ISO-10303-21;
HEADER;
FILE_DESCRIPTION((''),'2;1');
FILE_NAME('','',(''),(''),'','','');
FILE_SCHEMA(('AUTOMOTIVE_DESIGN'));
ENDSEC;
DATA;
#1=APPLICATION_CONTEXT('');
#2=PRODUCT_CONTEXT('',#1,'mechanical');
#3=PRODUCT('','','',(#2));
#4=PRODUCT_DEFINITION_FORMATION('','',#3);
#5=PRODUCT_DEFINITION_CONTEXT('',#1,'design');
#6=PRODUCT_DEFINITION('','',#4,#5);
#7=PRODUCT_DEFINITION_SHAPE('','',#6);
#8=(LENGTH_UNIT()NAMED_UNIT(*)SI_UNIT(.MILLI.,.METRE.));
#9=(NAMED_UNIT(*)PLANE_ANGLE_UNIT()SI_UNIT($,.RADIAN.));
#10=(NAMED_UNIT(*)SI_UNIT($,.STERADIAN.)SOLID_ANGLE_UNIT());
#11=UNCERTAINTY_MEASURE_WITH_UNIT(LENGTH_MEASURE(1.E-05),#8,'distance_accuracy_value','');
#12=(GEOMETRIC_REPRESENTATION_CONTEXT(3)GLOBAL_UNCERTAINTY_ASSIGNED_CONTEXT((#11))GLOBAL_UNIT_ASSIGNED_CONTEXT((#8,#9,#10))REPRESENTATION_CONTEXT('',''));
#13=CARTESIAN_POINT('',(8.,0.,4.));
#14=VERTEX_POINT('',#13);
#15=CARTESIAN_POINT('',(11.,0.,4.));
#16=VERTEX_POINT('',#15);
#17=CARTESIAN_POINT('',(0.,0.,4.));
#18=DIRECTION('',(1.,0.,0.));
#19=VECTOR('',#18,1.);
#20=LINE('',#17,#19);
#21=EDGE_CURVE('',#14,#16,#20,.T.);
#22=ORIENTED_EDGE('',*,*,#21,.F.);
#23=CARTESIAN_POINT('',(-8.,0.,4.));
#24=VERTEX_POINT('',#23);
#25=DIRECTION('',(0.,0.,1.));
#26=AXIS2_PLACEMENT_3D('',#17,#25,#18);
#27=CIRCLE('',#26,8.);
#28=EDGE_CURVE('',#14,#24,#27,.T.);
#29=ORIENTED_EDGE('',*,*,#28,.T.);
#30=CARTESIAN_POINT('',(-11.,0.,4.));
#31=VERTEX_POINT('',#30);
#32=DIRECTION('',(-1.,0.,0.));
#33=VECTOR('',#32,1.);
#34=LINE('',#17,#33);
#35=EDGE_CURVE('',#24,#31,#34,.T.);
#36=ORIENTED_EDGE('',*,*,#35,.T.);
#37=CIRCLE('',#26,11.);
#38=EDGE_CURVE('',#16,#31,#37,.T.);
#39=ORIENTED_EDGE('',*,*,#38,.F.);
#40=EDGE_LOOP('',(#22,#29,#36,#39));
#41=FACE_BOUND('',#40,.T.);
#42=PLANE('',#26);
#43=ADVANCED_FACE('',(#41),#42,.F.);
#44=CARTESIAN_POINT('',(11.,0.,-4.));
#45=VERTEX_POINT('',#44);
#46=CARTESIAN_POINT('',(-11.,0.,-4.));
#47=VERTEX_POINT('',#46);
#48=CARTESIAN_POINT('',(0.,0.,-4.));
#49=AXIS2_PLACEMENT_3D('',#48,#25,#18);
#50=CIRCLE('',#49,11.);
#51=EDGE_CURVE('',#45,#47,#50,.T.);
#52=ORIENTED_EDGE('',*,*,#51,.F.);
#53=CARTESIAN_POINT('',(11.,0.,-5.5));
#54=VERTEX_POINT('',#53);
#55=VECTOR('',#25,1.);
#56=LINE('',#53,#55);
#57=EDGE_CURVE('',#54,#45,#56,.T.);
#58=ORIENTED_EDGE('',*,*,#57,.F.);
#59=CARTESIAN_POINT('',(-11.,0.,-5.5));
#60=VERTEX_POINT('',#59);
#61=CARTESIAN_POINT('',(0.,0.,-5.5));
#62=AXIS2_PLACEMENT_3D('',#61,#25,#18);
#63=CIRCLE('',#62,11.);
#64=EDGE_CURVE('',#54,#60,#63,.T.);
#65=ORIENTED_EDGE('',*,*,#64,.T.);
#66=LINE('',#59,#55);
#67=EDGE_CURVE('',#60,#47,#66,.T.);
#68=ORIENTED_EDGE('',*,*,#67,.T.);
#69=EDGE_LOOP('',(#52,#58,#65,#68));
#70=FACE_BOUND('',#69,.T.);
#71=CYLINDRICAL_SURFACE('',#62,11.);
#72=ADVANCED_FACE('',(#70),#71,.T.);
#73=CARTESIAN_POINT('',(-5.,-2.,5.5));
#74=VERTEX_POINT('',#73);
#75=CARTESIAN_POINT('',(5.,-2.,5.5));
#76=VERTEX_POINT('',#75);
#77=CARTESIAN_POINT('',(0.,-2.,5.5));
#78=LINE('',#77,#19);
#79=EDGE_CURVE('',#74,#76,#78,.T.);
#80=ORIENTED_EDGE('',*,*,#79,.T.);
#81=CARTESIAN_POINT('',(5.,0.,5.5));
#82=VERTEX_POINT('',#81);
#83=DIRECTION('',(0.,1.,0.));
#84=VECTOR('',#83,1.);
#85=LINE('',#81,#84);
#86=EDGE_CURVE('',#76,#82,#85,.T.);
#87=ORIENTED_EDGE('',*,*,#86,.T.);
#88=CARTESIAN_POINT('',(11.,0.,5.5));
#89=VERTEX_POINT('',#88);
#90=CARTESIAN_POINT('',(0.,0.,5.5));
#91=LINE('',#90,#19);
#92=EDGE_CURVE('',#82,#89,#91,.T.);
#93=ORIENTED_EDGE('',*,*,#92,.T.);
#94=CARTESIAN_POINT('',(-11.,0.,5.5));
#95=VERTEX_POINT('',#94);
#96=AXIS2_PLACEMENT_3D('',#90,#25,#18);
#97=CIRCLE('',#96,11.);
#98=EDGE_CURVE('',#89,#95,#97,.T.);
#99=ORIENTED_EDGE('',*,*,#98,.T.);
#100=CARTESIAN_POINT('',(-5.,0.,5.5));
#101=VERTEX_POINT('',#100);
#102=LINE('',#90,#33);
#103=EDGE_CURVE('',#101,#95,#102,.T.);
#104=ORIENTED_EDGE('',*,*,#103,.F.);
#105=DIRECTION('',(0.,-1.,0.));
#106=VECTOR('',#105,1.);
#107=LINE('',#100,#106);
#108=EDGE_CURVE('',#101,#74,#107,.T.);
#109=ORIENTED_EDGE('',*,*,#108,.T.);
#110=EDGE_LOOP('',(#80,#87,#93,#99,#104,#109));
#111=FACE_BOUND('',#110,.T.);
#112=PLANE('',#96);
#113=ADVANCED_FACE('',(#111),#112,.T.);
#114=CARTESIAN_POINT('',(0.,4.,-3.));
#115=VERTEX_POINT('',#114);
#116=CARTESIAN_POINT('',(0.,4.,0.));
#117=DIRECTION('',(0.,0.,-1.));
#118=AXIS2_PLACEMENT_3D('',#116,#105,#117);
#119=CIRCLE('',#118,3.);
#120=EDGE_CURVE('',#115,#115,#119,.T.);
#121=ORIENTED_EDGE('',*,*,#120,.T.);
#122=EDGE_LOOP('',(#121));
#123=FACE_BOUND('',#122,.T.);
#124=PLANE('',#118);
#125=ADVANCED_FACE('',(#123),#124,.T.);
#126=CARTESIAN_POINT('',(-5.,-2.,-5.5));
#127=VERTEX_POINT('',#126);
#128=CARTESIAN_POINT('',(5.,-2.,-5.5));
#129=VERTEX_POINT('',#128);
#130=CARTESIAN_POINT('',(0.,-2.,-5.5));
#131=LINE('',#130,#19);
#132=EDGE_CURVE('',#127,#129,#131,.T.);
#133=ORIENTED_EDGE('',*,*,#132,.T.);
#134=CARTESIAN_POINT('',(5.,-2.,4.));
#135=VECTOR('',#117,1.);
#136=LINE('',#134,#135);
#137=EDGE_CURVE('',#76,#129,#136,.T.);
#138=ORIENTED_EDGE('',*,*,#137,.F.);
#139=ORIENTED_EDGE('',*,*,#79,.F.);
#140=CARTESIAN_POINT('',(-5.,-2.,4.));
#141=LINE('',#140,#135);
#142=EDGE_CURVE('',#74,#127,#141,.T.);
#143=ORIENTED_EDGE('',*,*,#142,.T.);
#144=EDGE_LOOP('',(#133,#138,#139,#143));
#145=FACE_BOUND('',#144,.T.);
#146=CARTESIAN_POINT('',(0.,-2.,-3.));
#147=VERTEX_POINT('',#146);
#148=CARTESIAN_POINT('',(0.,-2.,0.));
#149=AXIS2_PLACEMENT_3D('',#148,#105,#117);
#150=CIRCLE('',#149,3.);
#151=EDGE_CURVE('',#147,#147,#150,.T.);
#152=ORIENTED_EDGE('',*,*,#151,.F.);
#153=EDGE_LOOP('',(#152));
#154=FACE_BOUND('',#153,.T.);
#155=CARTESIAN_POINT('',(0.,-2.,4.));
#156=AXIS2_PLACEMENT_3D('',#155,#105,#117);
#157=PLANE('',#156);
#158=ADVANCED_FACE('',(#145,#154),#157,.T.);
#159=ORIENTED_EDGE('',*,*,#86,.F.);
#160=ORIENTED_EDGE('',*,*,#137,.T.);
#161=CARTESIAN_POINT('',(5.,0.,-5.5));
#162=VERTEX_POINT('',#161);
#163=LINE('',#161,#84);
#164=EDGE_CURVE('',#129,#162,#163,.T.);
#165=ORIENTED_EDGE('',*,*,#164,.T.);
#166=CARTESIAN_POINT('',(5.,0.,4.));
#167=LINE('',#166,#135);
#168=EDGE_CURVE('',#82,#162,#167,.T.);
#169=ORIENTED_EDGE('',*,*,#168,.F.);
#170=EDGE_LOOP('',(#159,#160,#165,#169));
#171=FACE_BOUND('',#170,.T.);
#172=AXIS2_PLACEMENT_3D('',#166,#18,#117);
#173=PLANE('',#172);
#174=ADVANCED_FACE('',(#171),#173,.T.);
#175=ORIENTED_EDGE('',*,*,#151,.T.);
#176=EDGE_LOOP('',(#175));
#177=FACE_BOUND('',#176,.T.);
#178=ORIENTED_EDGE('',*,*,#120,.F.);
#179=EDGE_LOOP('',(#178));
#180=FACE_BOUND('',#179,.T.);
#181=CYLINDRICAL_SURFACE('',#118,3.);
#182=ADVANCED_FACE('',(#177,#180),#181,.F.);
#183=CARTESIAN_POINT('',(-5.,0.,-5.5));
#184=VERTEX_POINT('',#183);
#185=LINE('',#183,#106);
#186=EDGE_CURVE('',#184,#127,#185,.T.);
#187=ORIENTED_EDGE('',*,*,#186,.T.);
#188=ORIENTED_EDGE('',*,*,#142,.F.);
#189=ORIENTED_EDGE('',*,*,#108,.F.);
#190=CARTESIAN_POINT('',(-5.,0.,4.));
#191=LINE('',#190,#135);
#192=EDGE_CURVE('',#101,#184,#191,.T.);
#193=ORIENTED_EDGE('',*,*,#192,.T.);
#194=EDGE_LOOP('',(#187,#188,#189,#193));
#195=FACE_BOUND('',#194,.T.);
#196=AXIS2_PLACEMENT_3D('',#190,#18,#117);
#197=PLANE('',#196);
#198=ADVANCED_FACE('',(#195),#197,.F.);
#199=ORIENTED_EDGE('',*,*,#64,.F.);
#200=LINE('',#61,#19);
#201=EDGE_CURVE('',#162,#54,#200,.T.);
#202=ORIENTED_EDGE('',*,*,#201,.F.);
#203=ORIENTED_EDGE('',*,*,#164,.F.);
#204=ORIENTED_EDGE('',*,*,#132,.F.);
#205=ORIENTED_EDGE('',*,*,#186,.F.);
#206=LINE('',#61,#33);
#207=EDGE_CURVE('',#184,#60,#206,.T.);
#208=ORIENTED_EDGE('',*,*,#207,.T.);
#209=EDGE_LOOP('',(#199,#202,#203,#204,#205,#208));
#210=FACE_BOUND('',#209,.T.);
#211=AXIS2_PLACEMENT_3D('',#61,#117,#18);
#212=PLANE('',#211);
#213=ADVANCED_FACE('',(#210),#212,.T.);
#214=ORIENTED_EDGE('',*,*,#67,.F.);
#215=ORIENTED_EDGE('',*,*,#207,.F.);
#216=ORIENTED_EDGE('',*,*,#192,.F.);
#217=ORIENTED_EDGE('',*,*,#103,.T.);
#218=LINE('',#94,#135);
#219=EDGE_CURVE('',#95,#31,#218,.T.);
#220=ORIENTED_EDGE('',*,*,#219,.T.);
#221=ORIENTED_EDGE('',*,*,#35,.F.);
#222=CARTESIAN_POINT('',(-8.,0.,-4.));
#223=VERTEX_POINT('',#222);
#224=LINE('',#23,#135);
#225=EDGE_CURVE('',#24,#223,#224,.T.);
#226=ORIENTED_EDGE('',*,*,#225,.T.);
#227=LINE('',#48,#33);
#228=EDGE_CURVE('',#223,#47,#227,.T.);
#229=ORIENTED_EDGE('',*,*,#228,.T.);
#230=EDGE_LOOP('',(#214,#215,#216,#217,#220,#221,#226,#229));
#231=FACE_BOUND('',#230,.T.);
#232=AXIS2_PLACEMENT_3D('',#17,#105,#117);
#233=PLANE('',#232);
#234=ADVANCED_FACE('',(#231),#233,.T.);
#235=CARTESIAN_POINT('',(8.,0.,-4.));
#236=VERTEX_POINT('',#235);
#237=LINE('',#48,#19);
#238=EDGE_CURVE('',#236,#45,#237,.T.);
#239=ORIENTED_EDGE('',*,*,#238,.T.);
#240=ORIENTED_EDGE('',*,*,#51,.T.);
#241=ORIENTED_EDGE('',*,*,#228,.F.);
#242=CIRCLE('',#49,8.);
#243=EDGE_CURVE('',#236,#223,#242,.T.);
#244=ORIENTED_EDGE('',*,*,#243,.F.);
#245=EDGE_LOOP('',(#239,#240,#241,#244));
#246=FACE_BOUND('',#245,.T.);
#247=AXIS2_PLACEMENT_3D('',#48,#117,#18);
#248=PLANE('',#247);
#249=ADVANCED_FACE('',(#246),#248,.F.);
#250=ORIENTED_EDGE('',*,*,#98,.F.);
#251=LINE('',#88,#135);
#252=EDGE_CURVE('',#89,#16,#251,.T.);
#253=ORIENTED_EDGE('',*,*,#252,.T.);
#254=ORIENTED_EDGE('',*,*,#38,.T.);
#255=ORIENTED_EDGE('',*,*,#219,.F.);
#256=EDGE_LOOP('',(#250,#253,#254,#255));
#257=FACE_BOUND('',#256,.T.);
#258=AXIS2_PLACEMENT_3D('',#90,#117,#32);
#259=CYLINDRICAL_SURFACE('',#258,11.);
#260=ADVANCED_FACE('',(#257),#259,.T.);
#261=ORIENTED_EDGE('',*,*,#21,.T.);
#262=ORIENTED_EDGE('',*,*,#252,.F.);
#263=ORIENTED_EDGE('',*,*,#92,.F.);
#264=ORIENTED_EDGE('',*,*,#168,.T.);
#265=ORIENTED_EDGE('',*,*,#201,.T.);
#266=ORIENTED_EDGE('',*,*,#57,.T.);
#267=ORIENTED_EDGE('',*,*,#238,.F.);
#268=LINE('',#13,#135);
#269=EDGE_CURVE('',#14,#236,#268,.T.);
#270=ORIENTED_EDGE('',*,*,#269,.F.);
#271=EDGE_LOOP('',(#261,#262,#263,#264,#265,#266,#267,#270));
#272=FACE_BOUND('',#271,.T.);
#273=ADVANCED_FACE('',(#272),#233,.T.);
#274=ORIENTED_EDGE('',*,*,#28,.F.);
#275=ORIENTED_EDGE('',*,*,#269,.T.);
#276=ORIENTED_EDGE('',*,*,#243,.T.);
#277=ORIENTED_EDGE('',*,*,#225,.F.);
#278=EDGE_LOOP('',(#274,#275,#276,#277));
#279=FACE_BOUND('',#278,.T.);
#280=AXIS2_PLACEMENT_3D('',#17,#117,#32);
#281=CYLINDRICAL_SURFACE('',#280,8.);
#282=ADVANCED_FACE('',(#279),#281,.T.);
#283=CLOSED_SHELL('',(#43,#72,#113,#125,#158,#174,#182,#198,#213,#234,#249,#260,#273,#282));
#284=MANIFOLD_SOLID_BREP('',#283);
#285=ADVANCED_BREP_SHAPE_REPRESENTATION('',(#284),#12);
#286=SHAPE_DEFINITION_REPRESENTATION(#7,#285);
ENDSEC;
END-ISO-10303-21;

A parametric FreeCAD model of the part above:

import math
import FreeCAD as App
import Part
import Sketcher
from FreeCAD import Vector
Q = App.Units.Quantity

doc = App.newDocument("Part")
body = doc.addObject("PartDesign::Body", "Body")

# Sketch on XY plane
sketch1 = body.newObject("Sketcher::SketchObject", "Sketch")
sketch1.AttachmentSupport = (doc.getObject("XY_Plane"), [""])
sketch1.MapMode = "FlatFace"
sketch1.addGeometry(Part.ArcOfCircle(Part.Circle(Vector(0, 0, 0), Vector(0, 0, 1), 8), math.radians(0), math.radians(90)), False)
sketch1.addGeometry(Part.ArcOfCircle(Part.Circle(Vector(0, 0, 0), Vector(0, 0, 1), 8), math.radians(90), math.radians(180)), False)
sketch1.addGeometry(Part.LineSegment(Vector(-8, 0, 0), Vector(-5, 0, 0)), False)
sketch1.addGeometry(Part.LineSegment(Vector(-5, 0, 0), Vector(-5, -2, 0)), False)
sketch1.addGeometry(Part.LineSegment(Vector(-5, -2, 0), Vector(5, -2, 0)), False)
sketch1.addGeometry(Part.LineSegment(Vector(5, -2, 0), Vector(5, 0, 0)), False)
sketch1.addGeometry(Part.LineSegment(Vector(5, 0, 0), Vector(8, 0, 0)), False)
sketch1.addConstraint(Sketcher.Constraint("Tangent", 0, 2, 1, 1))
sketch1.addConstraint(Sketcher.Constraint("Coincident", 1, 2, 2, 1))
sketch1.addConstraint(Sketcher.Constraint("Coincident", 2, 2, 3, 1))
sketch1.addConstraint(Sketcher.Constraint("Coincident", 3, 2, 4, 1))
sketch1.addConstraint(Sketcher.Constraint("Coincident", 4, 2, 5, 1))
sketch1.addConstraint(Sketcher.Constraint("Coincident", 5, 2, 6, 1))
sketch1.addConstraint(Sketcher.Constraint("Coincident", 6, 2, 0, 1))
sketch1.addConstraint(Sketcher.Constraint("Horizontal", 2))
sketch1.addConstraint(Sketcher.Constraint("Vertical", 3))
sketch1.addConstraint(Sketcher.Constraint("Horizontal", 4))
sketch1.addConstraint(Sketcher.Constraint("Vertical", 5))
sketch1.addConstraint(Sketcher.Constraint("Horizontal", 6))
sketch1.addConstraint(Sketcher.Constraint("Coincident", 0, 3, -1, 1))
sketch1.addConstraint(Sketcher.Constraint("Equal", 0, 1))
sketch1.addConstraint(Sketcher.Constraint("Symmetric", 2, 2, 5, 2, -1, 1))
sketch1.addConstraint(Sketcher.Constraint("PointOnObject", 0, 2, -2))
sketch1.addConstraint(Sketcher.Constraint("PointOnObject", 1, 2, -1))
sketch1.addConstraint(Sketcher.Constraint("Radius", 0, Q("8 mm")))
sketch1.addConstraint(Sketcher.Constraint("DistanceX", 2, 1, 2, 2, Q("3 mm")))
sketch1.addConstraint(Sketcher.Constraint("DistanceY", 3, 2, 3, 1, Q("2 mm")))
pad1 = body.newObject("PartDesign::Pad", "Pad")
pad1.Profile = sketch1
pad1.Length = 8
pad1.Midplane = True

# Sketch on XZ plane
sketch2 = body.newObject("Sketcher::SketchObject", "Sketch001")
sketch2.AttachmentSupport = (doc.getObject("XZ_Plane"), [""])
sketch2.MapMode = "FlatFace"
sketch2.AttachmentOffset = App.Placement(Vector(0, 0, 2), App.Rotation())
sketch2.addGeometry(Part.Circle(Vector(0, 0, 0), Vector(0, 0, 1), 3), False)
sketch2.addConstraint(Sketcher.Constraint("Coincident", 0, 3, -1, 1))
sketch2.addConstraint(Sketcher.Constraint("Diameter", 0, Q("6 mm")))
pocket1 = body.newObject("PartDesign::Pocket", "Pocket")
pocket1.Profile = sketch2
pocket1.Length = 6

# Sketch on XY plane
sketch3 = body.newObject("Sketcher::SketchObject", "Sketch002")
sketch3.AttachmentSupport = (doc.getObject("XY_Plane"), [""])
sketch3.MapMode = "FlatFace"
sketch3.AttachmentOffset = App.Placement(Vector(0, 0, 5.5), App.Rotation())
sketch3.addGeometry(Part.ArcOfCircle(Part.Circle(Vector(0, 0, 0), Vector(0, 0, 1), 11), math.radians(0), math.radians(180)), False)
sketch3.addGeometry(Part.LineSegment(Vector(-11, 0, 0), Vector(-5, 0, 0)), False)
sketch3.addGeometry(Part.LineSegment(Vector(-5, 0, 0), Vector(-5, -2, 0)), False)
sketch3.addGeometry(Part.LineSegment(Vector(-5, -2, 0), Vector(5, -2, 0)), False)
sketch3.addGeometry(Part.LineSegment(Vector(5, -2, 0), Vector(5, 0, 0)), False)
sketch3.addGeometry(Part.LineSegment(Vector(5, 0, 0), Vector(11, 0, 0)), False)
sketch3.addConstraint(Sketcher.Constraint("Coincident", 0, 2, 1, 1))
sketch3.addConstraint(Sketcher.Constraint("Coincident", 1, 2, 2, 1))
sketch3.addConstraint(Sketcher.Constraint("Coincident", 2, 2, 3, 1))
sketch3.addConstraint(Sketcher.Constraint("Coincident", 3, 2, 4, 1))
sketch3.addConstraint(Sketcher.Constraint("Coincident", 4, 2, 5, 1))
sketch3.addConstraint(Sketcher.Constraint("Coincident", 5, 2, 0, 1))
sketch3.addConstraint(Sketcher.Constraint("Horizontal", 1))
sketch3.addConstraint(Sketcher.Constraint("Vertical", 2))
sketch3.addConstraint(Sketcher.Constraint("Horizontal", 3))
sketch3.addConstraint(Sketcher.Constraint("Vertical", 4))
sketch3.addConstraint(Sketcher.Constraint("Horizontal", 5))
sketch3.addConstraint(Sketcher.Constraint("Coincident", 0, 3, -1, 1))
sketch3.addConstraint(Sketcher.Constraint("Symmetric", 1, 2, 4, 2, -1, 1))
sketch3.addConstraint(Sketcher.Constraint("PointOnObject", 0, 2, -1))
sketch3.addConstraint(Sketcher.Constraint("Radius", 0, Q("11 mm")))
sketch3.addConstraint(Sketcher.Constraint("DistanceX", 1, 1, 1, 2, Q("6 mm")))
sketch3.addConstraint(Sketcher.Constraint("DistanceY", 2, 2, 2, 1, Q("2 mm")))
pad2 = body.newObject("PartDesign::Pad", "Pad001")
pad2.Profile = sketch3
pad2.Length = 1.5
pad2.Reversed = True
doc.recompute()

mirrored = body.newObject("PartDesign::Mirrored", "Mirrored")
mirrored.Originals = [pad2]
mirrored.MirrorPlane = (doc.getObject("XY_Plane"), [""])
body.Tip = mirrored

doc.recompute()
